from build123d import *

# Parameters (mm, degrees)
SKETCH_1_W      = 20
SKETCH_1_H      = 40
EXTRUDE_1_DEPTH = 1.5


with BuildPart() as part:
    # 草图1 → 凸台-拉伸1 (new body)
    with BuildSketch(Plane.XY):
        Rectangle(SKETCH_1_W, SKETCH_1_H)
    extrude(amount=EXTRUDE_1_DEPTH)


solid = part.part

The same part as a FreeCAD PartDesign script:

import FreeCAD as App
import Part
import Sketcher
Q = App.Units.Quantity


def add_polygon(sketch, points):
    """Adds a closed chain of lines whose ends are joined by coincident constraints."""
    first, n = sketch.GeometryCount, len(points)
    for a, b in zip(points, points[1:] + points[:1]):
        sketch.addGeometry(Part.LineSegment(App.Vector(*a, 0), App.Vector(*b, 0)), False)
    for i in range(n):
        sketch.addConstraint(Sketcher.Constraint("Coincident", first + i, 2, first + (i + 1) % n, 1))

doc = App.newDocument("Part")
params = doc.addObject("Spreadsheet::Sheet", "Params")
for row, (alias, value) in enumerate([
    ("sketch1_width", "20 mm"),
    ("sketch1_height", "40 mm"),
    ("pad1_length", "1.5 mm"),
], start=1):
    params.set(f"A{row}", alias)
    params.set(f"B{row}", "=" + value)
    params.setAlias(f"B{row}", alias)

body = doc.addObject("PartDesign::Body", "Body")

# Sketch on XY plane
sketch1 = body.newObject("Sketcher::SketchObject", "Sketch")
sketch1.AttachmentSupport = (doc.getObject("XY_Plane"), [""])
sketch1.MapMode = "FlatFace"
add_polygon(sketch1, [(-10, 20), (-10, -20), (10, -20), (10, 20)])  # lines 0-3
sketch1.addConstraint(Sketcher.Constraint("Vertical", 0))
sketch1.addConstraint(Sketcher.Constraint("Horizontal", 1))
sketch1.addConstraint(Sketcher.Constraint("Vertical", 2))
sketch1.addConstraint(Sketcher.Constraint("Horizontal", 3))
sketch1.addConstraint(Sketcher.Constraint("Symmetric", 0, 2, 2, 2, -1, 1))
sketch1.addConstraint(Sketcher.Constraint("DistanceX", 1, 1, 1, 2, Q("20 mm")))
sketch1.addConstraint(Sketcher.Constraint("DistanceY", 0, 2, 0, 1, Q("40 mm")))
sketch1.setExpression("Constraints[9]", "Params.sketch1_width")
sketch1.setExpression("Constraints[10]", "Params.sketch1_height")
pad1 = body.newObject("PartDesign::Pad", "Pad")
pad1.Profile = sketch1
pad1.setExpression("Length", "Params.pad1_length")

doc.recompute()
